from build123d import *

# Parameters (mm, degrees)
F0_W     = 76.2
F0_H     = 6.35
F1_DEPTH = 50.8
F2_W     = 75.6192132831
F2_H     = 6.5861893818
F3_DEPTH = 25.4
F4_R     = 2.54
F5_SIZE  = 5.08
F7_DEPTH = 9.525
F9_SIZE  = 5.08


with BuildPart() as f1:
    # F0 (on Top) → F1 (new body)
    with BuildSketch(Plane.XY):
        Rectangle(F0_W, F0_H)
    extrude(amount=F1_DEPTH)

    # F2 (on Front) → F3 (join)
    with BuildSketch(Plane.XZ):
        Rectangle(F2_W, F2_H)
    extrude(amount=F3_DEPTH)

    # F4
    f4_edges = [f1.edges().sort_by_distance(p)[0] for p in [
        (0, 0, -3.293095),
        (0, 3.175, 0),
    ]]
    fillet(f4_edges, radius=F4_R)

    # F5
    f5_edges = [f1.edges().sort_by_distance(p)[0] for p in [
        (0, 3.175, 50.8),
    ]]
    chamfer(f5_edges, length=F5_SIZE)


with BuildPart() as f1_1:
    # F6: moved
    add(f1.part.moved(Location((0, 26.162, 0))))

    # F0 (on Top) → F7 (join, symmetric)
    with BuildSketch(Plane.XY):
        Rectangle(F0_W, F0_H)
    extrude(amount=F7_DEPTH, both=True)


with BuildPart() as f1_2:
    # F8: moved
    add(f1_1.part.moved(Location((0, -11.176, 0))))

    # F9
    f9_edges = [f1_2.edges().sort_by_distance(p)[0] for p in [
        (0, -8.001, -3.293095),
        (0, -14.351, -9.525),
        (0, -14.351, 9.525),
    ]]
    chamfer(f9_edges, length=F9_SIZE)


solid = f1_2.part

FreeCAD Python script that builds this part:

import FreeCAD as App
import Part
import Sketcher

V = App.Vector
Q = App.Units.Quantity


def edges_at(feature, points):
    """Names of the edges that pass closest to the given points."""
    edges = feature.Shape.Edges
    near = lambda p: min(range(len(edges)), key=lambda i: edges[i].distToShape(Part.Vertex(*p))[0])
    return sorted({f"Edge{near(p) + 1}" for p in points})


def add_polygon(sketch, points):
    """Adds a closed chain of lines whose ends are joined by coincident constraints."""
    first, n = sketch.GeometryCount, len(points)
    for a, b in zip(points, points[1:] + points[:1]):
        sketch.addGeometry(Part.LineSegment(App.Vector(*a, 0), App.Vector(*b, 0)), False)
    for i in range(n):
        sketch.addConstraint(Sketcher.Constraint("Coincident", first + i, 2, first + (i + 1) % n, 1))

doc = App.newDocument("Part")
body = doc.addObject("PartDesign::Body", "Body")

# Sketch on XY plane
sketch1 = body.newObject("Sketcher::SketchObject", "Sketch")
sketch1.AttachmentSupport = (doc.getObject("XY_Plane"), [""])
sketch1.MapMode = "FlatFace"
add_polygon(sketch1, [(-38.1, 3.175), (-38.1, -3.175), (38.1, -3.175), (38.1, 3.175)])  # lines 0-3
sketch1.addConstraint(Sketcher.Constraint("Vertical", 0))
sketch1.addConstraint(Sketcher.Constraint("Horizontal", 1))
sketch1.addConstraint(Sketcher.Constraint("Vertical", 2))
sketch1.addConstraint(Sketcher.Constraint("Horizontal", 3))
sketch1.addConstraint(Sketcher.Constraint("Symmetric", 0, 2, 2, 2, -1, 1))
sketch1.addConstraint(Sketcher.Constraint("DistanceX", 1, 1, 1, 2, Q("3 in")))
sketch1.addConstraint(Sketcher.Constraint("DistanceY", 0, 2, 0, 1, Q("0.25 in")))
pad1 = body.newObject("PartDesign::Pad", "Pad")
pad1.Profile = sketch1
pad1.Length = Q("2 in")

# Sketch on XZ plane
sketch2 = body.newObject("Sketcher::SketchObject", "Sketch001")
sketch2.AttachmentSupport = (doc.getObject("XZ_Plane"), [""])
sketch2.MapMode = "FlatFace"
add_polygon(sketch2, [(-37.809607, 3.293095), (-37.809607, -3.293095), (37.809607, -3.293095), (37.809607, 3.293095)])  # lines 0-3
sketch2.addConstraint(Sketcher.Constraint("Vertical", 0))
sketch2.addConstraint(Sketcher.Constraint("Horizontal", 1))
sketch2.addConstraint(Sketcher.Constraint("Vertical", 2))
sketch2.addConstraint(Sketcher.Constraint("Horizontal", 3))
sketch2.addConstraint(Sketcher.Constraint("Symmetric", 0, 2, 2, 2, -1, 1))
sketch2.addConstraint(Sketcher.Constraint("DistanceY", 0, 2, 0, 1, Q("6.586189 mm")))
sketch2.addConstraint(Sketcher.Constraint("DistanceX", 1, 1, 1, 2, Q("75.619213 mm")))
pad2 = body.newObject("PartDesign::Pad", "Pad001")
pad2.Profile = sketch2
pad2.Length = Q("1 in")
doc.recompute()

fillet = body.newObject("PartDesign::Fillet", "Fillet")
fillet.Base = (pad2, edges_at(pad2, [(0, 0, -3.293), (0, 3.175, 0)]))
fillet.Radius = Q("0.1 in")
doc.recompute()

chamfer = body.newObject("PartDesign::Chamfer", "Chamfer")
chamfer.Base = (fillet, edges_at(fillet, [(0, 3.175, 50.8)]))
chamfer.Size = Q("0.2 in")
body2 = doc.addObject("PartDesign::Body", "Body001")
doc.recompute()

body.Placement = App.Placement(V(0, 26.162, 0), App.Rotation(V(0, 0, 1), 0))
boolean = body2.newObject("PartDesign::Boolean", "Boolean")
boolean.Type = "Fuse"
boolean.addObjects([body])

# Sketch on XY plane
sketch3 = body2.newObject("Sketcher::SketchObject", "Sketch002")
sketch3.AttachmentSupport = (doc.getObject("XY_Plane001"), [""])
sketch3.MapMode = "FlatFace"
add_polygon(sketch3, [(-38.1, 3.175), (-38.1, -3.175), (38.1, -3.175), (38.1, 3.175)])  # lines 0-3
sketch3.addConstraint(Sketcher.Constraint("Vertical", 0))
sketch3.addConstraint(Sketcher.Constraint("Horizontal", 1))
sketch3.addConstraint(Sketcher.Constraint("Vertical", 2))
sketch3.addConstraint(Sketcher.Constraint("Horizontal", 3))
sketch3.addConstraint(Sketcher.Constraint("Symmetric", 0, 2, 2, 2, -1, 1))
sketch3.addConstraint(Sketcher.Constraint("DistanceX", 1, 1, 1, 2, Q("3 in")))
sketch3.addConstraint(Sketcher.Constraint("DistanceY", 0, 2, 0, 1, Q("0.25 in")))
pad3 = body2.newObject("PartDesign::Pad", "Pad002")
pad3.Profile = sketch3
pad3.Length = Q("0.75 in")
pad3.Midplane = True
body3 = doc.addObject("PartDesign::Body", "Body002")
doc.recompute()

body2.Placement = App.Placement(V(0, -11.176, 0), App.Rotation(V(0, 0, 1), 0))
boolean2 = body3.newObject("PartDesign::Boolean", "Boolean001")
boolean2.Type = "Fuse"
boolean2.addObjects([body2])
doc.recompute()

chamfer2 = body3.newObject("PartDesign::Chamfer", "Chamfer001")
chamfer2.Base = (boolean2, edges_at(boolean2, [(0, -8.001, -3.293), (0, -14.351, -9.525), (0, -14.351, 9.525)]))
chamfer2.Size = Q("0.2 in")

doc.recompute()
